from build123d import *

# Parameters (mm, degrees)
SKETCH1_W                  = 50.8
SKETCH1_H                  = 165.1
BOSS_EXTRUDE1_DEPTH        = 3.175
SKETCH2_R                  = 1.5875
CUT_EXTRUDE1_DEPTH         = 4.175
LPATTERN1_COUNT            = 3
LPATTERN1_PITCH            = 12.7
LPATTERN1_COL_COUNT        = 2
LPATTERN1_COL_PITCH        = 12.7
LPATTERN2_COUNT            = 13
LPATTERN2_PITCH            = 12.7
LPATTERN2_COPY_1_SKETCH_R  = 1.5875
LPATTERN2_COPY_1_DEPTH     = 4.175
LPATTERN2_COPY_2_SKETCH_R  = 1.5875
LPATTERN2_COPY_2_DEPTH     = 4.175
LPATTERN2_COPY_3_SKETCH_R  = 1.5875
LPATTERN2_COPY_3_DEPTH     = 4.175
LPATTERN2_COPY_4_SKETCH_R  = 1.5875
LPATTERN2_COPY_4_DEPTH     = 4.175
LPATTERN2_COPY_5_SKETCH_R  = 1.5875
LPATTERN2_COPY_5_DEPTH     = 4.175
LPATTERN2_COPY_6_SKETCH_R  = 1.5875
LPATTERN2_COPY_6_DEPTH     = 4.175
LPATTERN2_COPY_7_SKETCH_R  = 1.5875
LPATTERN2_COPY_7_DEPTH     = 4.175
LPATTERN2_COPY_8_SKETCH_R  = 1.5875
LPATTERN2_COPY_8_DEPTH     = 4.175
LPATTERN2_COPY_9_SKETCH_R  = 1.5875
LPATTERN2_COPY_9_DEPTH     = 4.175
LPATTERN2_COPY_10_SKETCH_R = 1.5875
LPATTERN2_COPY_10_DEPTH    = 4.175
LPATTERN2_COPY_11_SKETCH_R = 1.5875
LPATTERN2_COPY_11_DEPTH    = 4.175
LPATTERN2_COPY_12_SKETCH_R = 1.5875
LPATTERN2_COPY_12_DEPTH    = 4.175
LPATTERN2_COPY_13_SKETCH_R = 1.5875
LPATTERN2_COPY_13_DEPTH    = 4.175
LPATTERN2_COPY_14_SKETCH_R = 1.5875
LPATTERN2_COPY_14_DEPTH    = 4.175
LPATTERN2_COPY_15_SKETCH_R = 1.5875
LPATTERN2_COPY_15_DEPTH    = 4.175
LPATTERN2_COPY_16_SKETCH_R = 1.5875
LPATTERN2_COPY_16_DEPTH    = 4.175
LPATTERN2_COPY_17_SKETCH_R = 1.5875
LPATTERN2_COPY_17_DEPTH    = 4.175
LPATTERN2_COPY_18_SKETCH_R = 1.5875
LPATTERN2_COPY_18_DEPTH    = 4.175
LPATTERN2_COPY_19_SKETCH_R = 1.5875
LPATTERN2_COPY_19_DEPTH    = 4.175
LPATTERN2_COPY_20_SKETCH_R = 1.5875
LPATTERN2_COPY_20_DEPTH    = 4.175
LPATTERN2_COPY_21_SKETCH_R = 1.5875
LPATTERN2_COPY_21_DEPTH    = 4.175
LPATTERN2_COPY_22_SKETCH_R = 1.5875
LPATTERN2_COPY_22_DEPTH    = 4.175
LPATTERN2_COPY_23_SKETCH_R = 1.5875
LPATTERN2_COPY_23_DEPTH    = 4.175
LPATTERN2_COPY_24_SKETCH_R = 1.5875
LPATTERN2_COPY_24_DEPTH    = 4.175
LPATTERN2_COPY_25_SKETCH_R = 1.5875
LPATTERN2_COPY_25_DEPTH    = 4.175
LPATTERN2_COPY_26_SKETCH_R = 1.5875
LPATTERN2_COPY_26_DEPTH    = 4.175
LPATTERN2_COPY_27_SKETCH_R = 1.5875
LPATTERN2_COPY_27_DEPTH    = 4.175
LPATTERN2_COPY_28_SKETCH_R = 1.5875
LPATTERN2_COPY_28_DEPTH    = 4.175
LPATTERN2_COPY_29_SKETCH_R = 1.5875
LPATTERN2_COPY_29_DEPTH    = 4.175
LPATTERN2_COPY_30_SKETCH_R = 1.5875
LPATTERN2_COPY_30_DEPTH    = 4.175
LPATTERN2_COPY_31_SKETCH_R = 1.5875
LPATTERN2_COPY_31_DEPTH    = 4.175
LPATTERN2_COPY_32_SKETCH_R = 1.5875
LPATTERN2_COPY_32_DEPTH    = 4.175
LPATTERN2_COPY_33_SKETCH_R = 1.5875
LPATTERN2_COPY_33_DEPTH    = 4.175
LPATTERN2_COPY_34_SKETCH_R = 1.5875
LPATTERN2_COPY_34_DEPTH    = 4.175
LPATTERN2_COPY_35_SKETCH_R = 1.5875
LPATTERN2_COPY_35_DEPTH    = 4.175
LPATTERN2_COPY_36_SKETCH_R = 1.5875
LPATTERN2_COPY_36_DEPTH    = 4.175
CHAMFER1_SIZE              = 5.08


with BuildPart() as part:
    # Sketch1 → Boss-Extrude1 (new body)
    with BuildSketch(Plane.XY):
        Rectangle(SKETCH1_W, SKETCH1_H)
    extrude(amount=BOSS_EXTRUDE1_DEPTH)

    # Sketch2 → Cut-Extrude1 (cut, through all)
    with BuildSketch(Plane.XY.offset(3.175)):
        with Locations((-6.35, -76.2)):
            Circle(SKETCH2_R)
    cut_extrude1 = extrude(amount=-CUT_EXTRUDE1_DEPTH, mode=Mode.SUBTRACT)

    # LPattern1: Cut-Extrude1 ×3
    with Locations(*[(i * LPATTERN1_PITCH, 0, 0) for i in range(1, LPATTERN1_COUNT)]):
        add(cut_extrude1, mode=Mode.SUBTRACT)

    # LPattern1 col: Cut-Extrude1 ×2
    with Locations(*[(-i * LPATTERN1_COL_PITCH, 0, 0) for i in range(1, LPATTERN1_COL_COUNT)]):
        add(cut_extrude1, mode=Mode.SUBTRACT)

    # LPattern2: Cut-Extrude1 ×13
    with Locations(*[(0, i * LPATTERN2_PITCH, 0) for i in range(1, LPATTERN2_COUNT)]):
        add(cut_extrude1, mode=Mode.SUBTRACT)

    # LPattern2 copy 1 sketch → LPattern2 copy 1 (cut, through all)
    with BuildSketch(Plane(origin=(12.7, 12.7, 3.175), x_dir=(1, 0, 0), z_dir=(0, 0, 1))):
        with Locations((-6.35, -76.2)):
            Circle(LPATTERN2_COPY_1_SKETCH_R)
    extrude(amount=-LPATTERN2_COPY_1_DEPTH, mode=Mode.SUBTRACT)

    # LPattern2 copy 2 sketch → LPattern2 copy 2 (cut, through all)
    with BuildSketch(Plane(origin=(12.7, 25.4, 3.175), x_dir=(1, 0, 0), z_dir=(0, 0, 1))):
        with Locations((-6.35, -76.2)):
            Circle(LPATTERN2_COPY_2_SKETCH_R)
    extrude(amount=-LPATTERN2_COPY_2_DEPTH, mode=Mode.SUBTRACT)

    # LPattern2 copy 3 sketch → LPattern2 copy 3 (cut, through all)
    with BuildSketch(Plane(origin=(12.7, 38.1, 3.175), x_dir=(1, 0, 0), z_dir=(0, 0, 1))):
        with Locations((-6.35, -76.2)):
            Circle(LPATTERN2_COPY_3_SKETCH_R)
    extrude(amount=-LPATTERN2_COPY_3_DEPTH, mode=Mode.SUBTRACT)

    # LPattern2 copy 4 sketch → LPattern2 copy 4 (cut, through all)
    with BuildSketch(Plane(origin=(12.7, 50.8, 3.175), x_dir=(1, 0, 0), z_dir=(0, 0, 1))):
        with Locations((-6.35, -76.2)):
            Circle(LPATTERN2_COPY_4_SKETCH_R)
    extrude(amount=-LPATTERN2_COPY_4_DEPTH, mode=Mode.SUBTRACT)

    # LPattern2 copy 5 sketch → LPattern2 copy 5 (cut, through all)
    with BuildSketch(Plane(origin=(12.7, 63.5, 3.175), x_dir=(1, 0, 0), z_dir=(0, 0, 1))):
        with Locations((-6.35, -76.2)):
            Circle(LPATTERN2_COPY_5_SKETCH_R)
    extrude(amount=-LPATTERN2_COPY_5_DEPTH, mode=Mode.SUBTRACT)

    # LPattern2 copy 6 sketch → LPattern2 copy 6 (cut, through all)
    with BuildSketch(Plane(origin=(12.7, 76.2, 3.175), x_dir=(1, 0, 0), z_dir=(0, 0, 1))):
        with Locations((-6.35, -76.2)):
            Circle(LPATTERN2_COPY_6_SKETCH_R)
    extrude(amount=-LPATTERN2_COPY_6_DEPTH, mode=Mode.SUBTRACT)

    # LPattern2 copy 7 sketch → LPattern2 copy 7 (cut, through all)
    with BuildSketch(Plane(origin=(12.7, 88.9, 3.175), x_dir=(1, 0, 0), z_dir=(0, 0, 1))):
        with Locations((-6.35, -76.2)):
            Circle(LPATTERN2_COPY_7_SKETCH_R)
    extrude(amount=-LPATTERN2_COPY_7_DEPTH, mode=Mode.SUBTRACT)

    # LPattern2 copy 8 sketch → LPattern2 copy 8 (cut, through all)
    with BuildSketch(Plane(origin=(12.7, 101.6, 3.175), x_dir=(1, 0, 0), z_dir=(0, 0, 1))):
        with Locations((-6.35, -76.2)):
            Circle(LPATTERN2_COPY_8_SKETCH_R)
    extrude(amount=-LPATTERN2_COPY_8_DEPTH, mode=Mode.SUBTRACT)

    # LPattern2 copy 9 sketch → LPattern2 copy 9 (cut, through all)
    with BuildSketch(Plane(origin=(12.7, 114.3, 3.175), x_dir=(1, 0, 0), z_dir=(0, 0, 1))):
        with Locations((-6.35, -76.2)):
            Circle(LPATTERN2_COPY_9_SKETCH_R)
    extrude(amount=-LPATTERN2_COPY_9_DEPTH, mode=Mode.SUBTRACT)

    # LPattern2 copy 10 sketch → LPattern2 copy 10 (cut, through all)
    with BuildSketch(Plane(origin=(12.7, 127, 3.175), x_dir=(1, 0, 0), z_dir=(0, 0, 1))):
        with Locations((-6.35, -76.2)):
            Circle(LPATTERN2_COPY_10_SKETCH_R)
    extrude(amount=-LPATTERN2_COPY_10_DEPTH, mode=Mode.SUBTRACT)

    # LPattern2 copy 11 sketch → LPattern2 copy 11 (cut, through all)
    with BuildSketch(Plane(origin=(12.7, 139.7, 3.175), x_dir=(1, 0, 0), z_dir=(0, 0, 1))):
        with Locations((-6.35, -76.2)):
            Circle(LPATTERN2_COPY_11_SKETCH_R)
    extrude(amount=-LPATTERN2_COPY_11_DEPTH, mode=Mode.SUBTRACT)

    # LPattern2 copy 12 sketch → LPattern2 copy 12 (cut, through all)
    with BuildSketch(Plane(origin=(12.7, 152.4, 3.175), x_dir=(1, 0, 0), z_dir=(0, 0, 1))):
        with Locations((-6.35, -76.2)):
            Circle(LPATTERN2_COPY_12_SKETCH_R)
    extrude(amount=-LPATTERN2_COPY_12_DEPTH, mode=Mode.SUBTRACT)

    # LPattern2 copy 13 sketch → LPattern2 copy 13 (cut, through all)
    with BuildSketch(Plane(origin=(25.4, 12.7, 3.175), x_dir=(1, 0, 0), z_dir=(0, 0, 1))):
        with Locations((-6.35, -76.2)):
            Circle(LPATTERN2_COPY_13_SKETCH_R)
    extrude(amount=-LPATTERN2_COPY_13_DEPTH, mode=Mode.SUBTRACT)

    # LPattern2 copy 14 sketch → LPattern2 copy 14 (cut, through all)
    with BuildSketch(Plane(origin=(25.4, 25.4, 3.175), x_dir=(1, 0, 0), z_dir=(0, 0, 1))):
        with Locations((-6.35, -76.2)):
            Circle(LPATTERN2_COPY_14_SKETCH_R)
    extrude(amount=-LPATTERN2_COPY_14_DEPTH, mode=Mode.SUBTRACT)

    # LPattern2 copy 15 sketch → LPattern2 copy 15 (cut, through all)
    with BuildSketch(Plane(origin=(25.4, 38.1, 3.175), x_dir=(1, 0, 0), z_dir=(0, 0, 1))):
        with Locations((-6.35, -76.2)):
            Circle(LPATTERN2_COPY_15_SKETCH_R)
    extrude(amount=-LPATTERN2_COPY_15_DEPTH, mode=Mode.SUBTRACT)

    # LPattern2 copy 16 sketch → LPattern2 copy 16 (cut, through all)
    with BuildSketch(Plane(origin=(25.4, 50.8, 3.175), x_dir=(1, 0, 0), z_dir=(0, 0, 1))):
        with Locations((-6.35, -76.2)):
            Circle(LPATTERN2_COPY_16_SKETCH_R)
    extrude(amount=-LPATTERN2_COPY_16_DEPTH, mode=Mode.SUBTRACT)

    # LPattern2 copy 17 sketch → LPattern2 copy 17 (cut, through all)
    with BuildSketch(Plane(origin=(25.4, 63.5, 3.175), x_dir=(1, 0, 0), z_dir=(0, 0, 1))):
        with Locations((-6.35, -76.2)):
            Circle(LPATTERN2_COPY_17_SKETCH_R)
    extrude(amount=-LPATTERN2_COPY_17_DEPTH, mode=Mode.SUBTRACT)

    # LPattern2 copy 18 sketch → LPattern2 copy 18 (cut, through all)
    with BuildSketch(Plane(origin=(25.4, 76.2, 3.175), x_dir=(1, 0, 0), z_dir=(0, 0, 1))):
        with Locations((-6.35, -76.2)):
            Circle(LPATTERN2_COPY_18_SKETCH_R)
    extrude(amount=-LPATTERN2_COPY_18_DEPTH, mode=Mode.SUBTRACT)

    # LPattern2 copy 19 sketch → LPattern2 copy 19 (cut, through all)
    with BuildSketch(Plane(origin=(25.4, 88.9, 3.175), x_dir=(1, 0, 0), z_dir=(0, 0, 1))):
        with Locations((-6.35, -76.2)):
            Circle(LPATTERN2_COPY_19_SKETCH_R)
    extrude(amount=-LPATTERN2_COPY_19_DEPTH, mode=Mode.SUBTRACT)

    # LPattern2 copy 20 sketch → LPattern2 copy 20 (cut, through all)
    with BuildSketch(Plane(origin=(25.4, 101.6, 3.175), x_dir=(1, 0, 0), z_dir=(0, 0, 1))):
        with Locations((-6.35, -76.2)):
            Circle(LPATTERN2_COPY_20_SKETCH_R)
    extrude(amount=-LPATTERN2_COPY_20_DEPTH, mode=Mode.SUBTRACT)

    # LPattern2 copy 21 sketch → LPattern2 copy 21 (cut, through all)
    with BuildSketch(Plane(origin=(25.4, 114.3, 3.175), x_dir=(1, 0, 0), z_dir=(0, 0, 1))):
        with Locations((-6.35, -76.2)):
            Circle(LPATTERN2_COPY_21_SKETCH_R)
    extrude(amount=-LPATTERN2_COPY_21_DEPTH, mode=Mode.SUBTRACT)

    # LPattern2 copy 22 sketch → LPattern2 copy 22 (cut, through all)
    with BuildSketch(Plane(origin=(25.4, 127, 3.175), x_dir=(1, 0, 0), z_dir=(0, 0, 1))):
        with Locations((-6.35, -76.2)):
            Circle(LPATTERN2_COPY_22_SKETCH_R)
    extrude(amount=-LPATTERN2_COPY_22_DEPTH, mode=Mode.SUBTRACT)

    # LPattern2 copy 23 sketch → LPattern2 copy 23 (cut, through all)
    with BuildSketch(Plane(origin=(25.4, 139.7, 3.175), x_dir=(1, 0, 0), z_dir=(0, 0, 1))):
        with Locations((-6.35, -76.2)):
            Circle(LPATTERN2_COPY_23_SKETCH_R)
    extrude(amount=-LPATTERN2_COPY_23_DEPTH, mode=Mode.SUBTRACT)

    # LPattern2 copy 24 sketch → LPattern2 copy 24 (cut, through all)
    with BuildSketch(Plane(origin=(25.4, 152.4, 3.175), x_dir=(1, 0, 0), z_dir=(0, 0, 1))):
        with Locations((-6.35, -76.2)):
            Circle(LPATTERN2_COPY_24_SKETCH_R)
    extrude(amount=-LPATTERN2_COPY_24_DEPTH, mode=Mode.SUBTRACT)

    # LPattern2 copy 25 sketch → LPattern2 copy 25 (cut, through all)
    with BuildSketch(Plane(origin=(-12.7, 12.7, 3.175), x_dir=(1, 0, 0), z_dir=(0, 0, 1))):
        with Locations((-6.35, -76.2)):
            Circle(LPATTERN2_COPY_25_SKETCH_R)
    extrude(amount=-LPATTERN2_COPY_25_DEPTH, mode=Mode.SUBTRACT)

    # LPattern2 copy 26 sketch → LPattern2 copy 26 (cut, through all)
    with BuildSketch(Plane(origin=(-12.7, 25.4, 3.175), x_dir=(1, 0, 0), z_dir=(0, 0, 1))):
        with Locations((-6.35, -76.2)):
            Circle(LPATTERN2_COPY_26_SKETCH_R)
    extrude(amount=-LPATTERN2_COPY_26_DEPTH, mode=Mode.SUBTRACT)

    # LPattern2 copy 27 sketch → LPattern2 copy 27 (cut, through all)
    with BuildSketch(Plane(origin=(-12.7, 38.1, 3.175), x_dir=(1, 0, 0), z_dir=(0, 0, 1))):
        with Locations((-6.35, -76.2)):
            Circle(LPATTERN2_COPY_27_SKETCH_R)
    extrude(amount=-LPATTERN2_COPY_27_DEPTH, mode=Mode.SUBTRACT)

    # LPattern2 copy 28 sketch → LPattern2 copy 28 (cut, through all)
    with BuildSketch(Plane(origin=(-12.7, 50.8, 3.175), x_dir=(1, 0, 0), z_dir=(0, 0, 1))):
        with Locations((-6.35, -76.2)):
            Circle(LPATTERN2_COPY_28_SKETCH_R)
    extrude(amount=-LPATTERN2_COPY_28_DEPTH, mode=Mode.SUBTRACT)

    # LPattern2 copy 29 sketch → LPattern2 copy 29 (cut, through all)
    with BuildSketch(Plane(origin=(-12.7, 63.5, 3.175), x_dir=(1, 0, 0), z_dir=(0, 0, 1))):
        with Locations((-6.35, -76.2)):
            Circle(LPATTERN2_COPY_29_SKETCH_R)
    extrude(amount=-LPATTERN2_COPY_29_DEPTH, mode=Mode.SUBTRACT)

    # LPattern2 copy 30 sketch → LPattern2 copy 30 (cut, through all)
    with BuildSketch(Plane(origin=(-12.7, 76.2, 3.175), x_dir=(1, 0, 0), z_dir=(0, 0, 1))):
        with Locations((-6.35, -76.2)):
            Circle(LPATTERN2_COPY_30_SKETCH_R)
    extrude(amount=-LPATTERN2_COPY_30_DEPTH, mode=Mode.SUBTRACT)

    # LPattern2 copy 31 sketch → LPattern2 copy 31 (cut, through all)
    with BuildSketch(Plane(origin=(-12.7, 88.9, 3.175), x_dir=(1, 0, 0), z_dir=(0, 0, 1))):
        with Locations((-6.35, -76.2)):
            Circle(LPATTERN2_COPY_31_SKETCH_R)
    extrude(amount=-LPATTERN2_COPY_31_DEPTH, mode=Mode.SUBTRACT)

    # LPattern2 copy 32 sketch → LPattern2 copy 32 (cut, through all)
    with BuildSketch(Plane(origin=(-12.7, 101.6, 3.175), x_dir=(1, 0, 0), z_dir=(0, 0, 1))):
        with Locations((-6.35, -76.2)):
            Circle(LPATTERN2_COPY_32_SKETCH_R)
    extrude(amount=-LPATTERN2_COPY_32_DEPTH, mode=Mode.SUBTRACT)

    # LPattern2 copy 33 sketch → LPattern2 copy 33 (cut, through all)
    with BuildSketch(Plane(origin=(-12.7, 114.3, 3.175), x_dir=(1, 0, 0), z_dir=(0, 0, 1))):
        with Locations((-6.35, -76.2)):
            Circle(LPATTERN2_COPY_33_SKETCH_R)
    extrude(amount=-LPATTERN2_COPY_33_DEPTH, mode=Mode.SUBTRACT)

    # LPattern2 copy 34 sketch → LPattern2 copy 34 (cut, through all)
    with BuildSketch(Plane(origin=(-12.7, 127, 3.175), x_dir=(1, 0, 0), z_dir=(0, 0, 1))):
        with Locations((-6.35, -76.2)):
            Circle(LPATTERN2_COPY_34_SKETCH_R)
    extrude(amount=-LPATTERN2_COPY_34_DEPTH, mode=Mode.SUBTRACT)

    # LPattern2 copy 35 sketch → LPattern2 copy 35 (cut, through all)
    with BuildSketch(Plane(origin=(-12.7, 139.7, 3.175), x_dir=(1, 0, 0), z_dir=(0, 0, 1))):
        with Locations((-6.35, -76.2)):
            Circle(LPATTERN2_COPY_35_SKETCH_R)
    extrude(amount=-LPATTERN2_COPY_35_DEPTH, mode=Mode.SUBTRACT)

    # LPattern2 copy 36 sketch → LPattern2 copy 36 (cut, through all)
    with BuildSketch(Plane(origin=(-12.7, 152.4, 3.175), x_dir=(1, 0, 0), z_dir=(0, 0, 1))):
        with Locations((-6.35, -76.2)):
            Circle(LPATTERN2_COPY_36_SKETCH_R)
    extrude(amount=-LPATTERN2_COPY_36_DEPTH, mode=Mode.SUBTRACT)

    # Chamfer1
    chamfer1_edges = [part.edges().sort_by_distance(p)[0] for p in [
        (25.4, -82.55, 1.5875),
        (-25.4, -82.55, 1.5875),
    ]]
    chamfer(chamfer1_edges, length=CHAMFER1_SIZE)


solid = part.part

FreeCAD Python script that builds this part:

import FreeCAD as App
import Part
import Sketcher
Q = App.Units.Quantity


def edges_at(feature, points):
    """Names of the edges that pass closest to the given points."""
    edges = feature.Shape.Edges
    near = lambda p: min(range(len(edges)), key=lambda i: edges[i].distToShape(Part.Vertex(*p))[0])
    return sorted({f"Edge{near(p) + 1}" for p in points})


def add_polygon(sketch, points):
    """Adds a closed chain of lines whose ends are joined by coincident constraints."""
    first, n = sketch.GeometryCount, len(points)
    for a, b in zip(points, points[1:] + points[:1]):
        sketch.addGeometry(Part.LineSegment(App.Vector(*a, 0), App.Vector(*b, 0)), False)
    for i in range(n):
        sketch.addConstraint(Sketcher.Constraint("Coincident", first + i, 2, first + (i + 1) % n, 1))

doc = App.newDocument("Part")
body = doc.addObject("PartDesign::Body", "Body")

# Sketch on XY plane
sketch1 = doc.addObject("Sketcher::SketchObject", "Sketch")
body.addObject(sketch1)
sketch1.AttachmentSupport = (doc.XY_Plane, [""])
sketch1.MapMode = "FlatFace"
add_polygon(sketch1, [(-25, 83), (-25, -83), (25, -83), (25, 83)])  # lines 0-3
sketch1.addConstraint([
    Sketcher.Constraint("Vertical", 0),
    Sketcher.Constraint("Horizontal", 1),
    Sketcher.Constraint("Vertical", 2),
    Sketcher.Constraint("Horizontal", 3),
    Sketcher.Constraint("Symmetric", 0, 2, 2, 2, -1, 1),
    Sketcher.Constraint("DistanceX", 1, 1, 1, 2, Q("2 in")),
    Sketcher.Constraint("DistanceY", 0, 2, 0, 1, Q("6.5 in")),
])
pad1 = doc.addObject("PartDesign::Pad", "Pad")
body.addObject(pad1)
pad1.Profile = sketch1
pad1.Length = Q("0.125 in")

# Sketch on XY plane
sketch2 = doc.addObject("Sketcher::SketchObject", "Sketch001")
body.addObject(sketch2)
sketch2.AttachmentSupport = (doc.XY_Plane, [""])
sketch2.MapMode = "FlatFace"
sketch2.AttachmentOffset = App.Placement(App.Vector(0, 0, 0.125 * 25.4), App.Rotation())
sketch2.addGeometry(Part.Circle(App.Vector(-6.3, -76.2, 0), App.Vector(0, 0, 1), 1.6), False)
sketch2.addConstraint([
    Sketcher.Constraint("Diameter", 0, Q("0.125 in")),
    Sketcher.Constraint("DistanceY", 0, 3, -1, 1, Q("3 in")),
    Sketcher.Constraint("DistanceX", 0, 3, -1, 1, Q("0.25 in")),
])
pocket1 = doc.addObject("PartDesign::Pocket", "Pocket")
body.addObject(pocket1)
pocket1.Profile = sketch2
pocket1.Type = "ThroughAll"
doc.recompute()

linearpattern = doc.addObject("PartDesign::LinearPattern", "LinearPattern")
body.addObject(linearpattern)
linearpattern.Originals = [pocket1]
linearpattern.Direction = (doc.X_Axis, [""])
linearpattern.Mode = "offset"
linearpattern.Offset = Q("0.5 in")
linearpattern.Occurrences = 3
body.Tip = linearpattern
doc.recompute()

linearpattern2 = doc.addObject("PartDesign::LinearPattern", "LinearPattern001")
body.addObject(linearpattern2)
linearpattern2.Originals = [pocket1]
linearpattern2.Direction = (doc.X_Axis, [""])
linearpattern2.Mode = "offset"
linearpattern2.Offset = Q("0.5 in")
linearpattern2.Occurrences = 2
linearpattern2.Reversed = True
body.Tip = linearpattern2
doc.recompute()

linearpattern3 = doc.addObject("PartDesign::LinearPattern", "LinearPattern002")
body.addObject(linearpattern3)
linearpattern3.Originals = [pocket1]
linearpattern3.Direction = (doc.Y_Axis, [""])
linearpattern3.Mode = "offset"
linearpattern3.Offset = Q("0.5 in")
linearpattern3.Occurrences = 13
body.Tip = linearpattern3

# Sketch on XY plane
sketch3 = doc.addObject("Sketcher::SketchObject", "Sketch002")
body.addObject(sketch3)
sketch3.AttachmentSupport = (doc.XY_Plane, [""])
sketch3.MapMode = "FlatFace"
sketch3.AttachmentOffset = App.Placement(App.Vector(0, 0, 0.125 * 25.4), App.Rotation())
sketch3.addGeometry(Part.Circle(App.Vector(6.3, -63.5, 0), App.Vector(0, 0, 1), 1.6), False)
sketch3.addConstraint([
    Sketcher.Constraint("Diameter", 0, Q("0.125 in")),
    Sketcher.Constraint("DistanceY", 0, 3, -1, 1, Q("2.5 in")),
    Sketcher.Constraint("DistanceX", -1, 1, 0, 3, Q("0.25 in")),
])
pocket2 = doc.addObject("PartDesign::Pocket", "Pocket001")
body.addObject(pocket2)
pocket2.Profile = sketch3
pocket2.Type = "ThroughAll"

# Sketch on XY plane
sketch4 = doc.addObject("Sketcher::SketchObject", "Sketch003")
body.addObject(sketch4)
sketch4.AttachmentSupport = (doc.XY_Plane, [""])
sketch4.MapMode = "FlatFace"
sketch4.AttachmentOffset = App.Placement(App.Vector(0, 0, 0.125 * 25.4), App.Rotation())
sketch4.addGeometry(Part.Circle(App.Vector(6.3, -50.8, 0), App.Vector(0, 0, 1), 1.6), False)
sketch4.addConstraint([
    Sketcher.Constraint("Diameter", 0, Q("0.125 in")),
    Sketcher.Constraint("DistanceY", 0, 3, -1, 1, Q("2 in")),
    Sketcher.Constraint("DistanceX", -1, 1, 0, 3, Q("0.25 in")),
])
pocket3 = doc.addObject("PartDesign::Pocket", "Pocket002")
body.addObject(pocket3)
pocket3.Profile = sketch4
pocket3.Type = "ThroughAll"

# Sketch on XY plane
sketch5 = doc.addObject("Sketcher::SketchObject", "Sketch004")
body.addObject(sketch5)
sketch5.AttachmentSupport = (doc.XY_Plane, [""])
sketch5.MapMode = "FlatFace"
sketch5.AttachmentOffset = App.Placement(App.Vector(0, 0, 0.125 * 25.4), App.Rotation())
sketch5.addGeometry(Part.Circle(App.Vector(6.3, -38.1, 0), App.Vector(0, 0, 1), 1.6), False)
sketch5.addConstraint([
    Sketcher.Constraint("Diameter", 0, Q("0.125 in")),
    Sketcher.Constraint("DistanceY", 0, 3, -1, 1, Q("1.5 in")),
    Sketcher.Constraint("DistanceX", -1, 1, 0, 3, Q("0.25 in")),
])
pocket4 = doc.addObject("PartDesign::Pocket", "Pocket003")
body.addObject(pocket4)
pocket4.Profile = sketch5
pocket4.Type = "ThroughAll"

# Sketch on XY plane
sketch6 = doc.addObject("Sketcher::SketchObject", "Sketch005")
body.addObject(sketch6)
sketch6.AttachmentSupport = (doc.XY_Plane, [""])
sketch6.MapMode = "FlatFace"
sketch6.AttachmentOffset = App.Placement(App.Vector(0, 0, 0.125 * 25.4), App.Rotation())
sketch6.addGeometry(Part.Circle(App.Vector(6.3, -25.4, 0), App.Vector(0, 0, 1), 1.6), False)
sketch6.addConstraint([
    Sketcher.Constraint("Diameter", 0, Q("0.125 in")),
    Sketcher.Constraint("DistanceY", 0, 3, -1, 1, Q("1 in")),
    Sketcher.Constraint("DistanceX", -1, 1, 0, 3, Q("0.25 in")),
])
pocket5 = doc.addObject("PartDesign::Pocket", "Pocket004")
body.addObject(pocket5)
pocket5.Profile = sketch6
pocket5.Type = "ThroughAll"

# Sketch on XY plane
sketch7 = doc.addObject("Sketcher::SketchObject", "Sketch006")
body.addObject(sketch7)
sketch7.AttachmentSupport = (doc.XY_Plane, [""])
sketch7.MapMode = "FlatFace"
sketch7.AttachmentOffset = App.Placement(App.Vector(0, 0, 0.125 * 25.4), App.Rotation())
sketch7.addGeometry(Part.Circle(App.Vector(6.3, -12.7, 0), App.Vector(0, 0, 1), 1.6), False)
sketch7.addConstraint([
    Sketcher.Constraint("Diameter", 0, Q("0.125 in")),
    Sketcher.Constraint("DistanceY", 0, 3, -1, 1, Q("0.5 in")),
    Sketcher.Constraint("DistanceX", -1, 1, 0, 3, Q("0.25 in")),
])
pocket6 = doc.addObject("PartDesign::Pocket", "Pocket005")
body.addObject(pocket6)
pocket6.Profile = sketch7
pocket6.Type = "ThroughAll"

# Sketch on XY plane
sketch8 = doc.addObject("Sketcher::SketchObject", "Sketch007")
body.addObject(sketch8)
sketch8.AttachmentSupport = (doc.XY_Plane, [""])
sketch8.MapMode = "FlatFace"
sketch8.AttachmentOffset = App.Placement(App.Vector(0, 0, 0.125 * 25.4), App.Rotation())
sketch8.addGeometry(Part.Circle(App.Vector(6.3, 0, 0), App.Vector(0, 0, 1), 1.6), False)
sketch8.addConstraint([
    Sketcher.Constraint("PointOnObject", 0, 3, -1),
    Sketcher.Constraint("Diameter", 0, Q("0.125 in")),
    Sketcher.Constraint("DistanceX", -1, 1, 0, 3, Q("0.25 in")),
])
pocket7 = doc.addObject("PartDesign::Pocket", "Pocket006")
body.addObject(pocket7)
pocket7.Profile = sketch8
pocket7.Type = "ThroughAll"

# Sketch on XY plane
sketch9 = doc.addObject("Sketcher::SketchObject", "Sketch008")
body.addObject(sketch9)
sketch9.AttachmentSupport = (doc.XY_Plane, [""])
sketch9.MapMode = "FlatFace"
sketch9.AttachmentOffset = App.Placement(App.Vector(0, 0, 0.125 * 25.4), App.Rotation())
sketch9.addGeometry(Part.Circle(App.Vector(6.3, 12.7, 0), App.Vector(0, 0, 1), 1.6), False)
sketch9.addConstraint([
    Sketcher.Constraint("Diameter", 0, Q("0.125 in")),
    Sketcher.Constraint("DistanceY", -1, 1, 0, 3, Q("0.5 in")),
    Sketcher.Constraint("DistanceX", -1, 1, 0, 3, Q("0.25 in")),
])
pocket8 = doc.addObject("PartDesign::Pocket", "Pocket007")
body.addObject(pocket8)
pocket8.Profile = sketch9
pocket8.Type = "ThroughAll"

# Sketch on XY plane
sketch10 = doc.addObject("Sketcher::SketchObject", "Sketch009")
body.addObject(sketch10)
sketch10.AttachmentSupport = (doc.XY_Plane, [""])
sketch10.MapMode = "FlatFace"
sketch10.AttachmentOffset = App.Placement(App.Vector(0, 0, 0.125 * 25.4), App.Rotation())
sketch10.addGeometry(Part.Circle(App.Vector(6.3, 25.4, 0), App.Vector(0, 0, 1), 1.6), False)
sketch10.addConstraint([
    Sketcher.Constraint("Diameter", 0, Q("0.125 in")),
    Sketcher.Constraint("DistanceY", -1, 1, 0, 3, Q("1 in")),
    Sketcher.Constraint("DistanceX", -1, 1, 0, 3, Q("0.25 in")),
])
pocket9 = doc.addObject("PartDesign::Pocket", "Pocket008")
body.addObject(pocket9)
pocket9.Profile = sketch10
pocket9.Type = "ThroughAll"

# Sketch on XY plane
sketch11 = doc.addObject("Sketcher::SketchObject", "Sketch010")
body.addObject(sketch11)
sketch11.AttachmentSupport = (doc.XY_Plane, [""])
sketch11.MapMode = "FlatFace"
sketch11.AttachmentOffset = App.Placement(App.Vector(0, 0, 0.125 * 25.4), App.Rotation())
sketch11.addGeometry(Part.Circle(App.Vector(6.3, 38.1, 0), App.Vector(0, 0, 1), 1.6), False)
sketch11.addConstraint([
    Sketcher.Constraint("Diameter", 0, Q("0.125 in")),
    Sketcher.Constraint("DistanceY", -1, 1, 0, 3, Q("1.5 in")),
    Sketcher.Constraint("DistanceX", -1, 1, 0, 3, Q("0.25 in")),
])
pocket10 = doc.addObject("PartDesign::Pocket", "Pocket009")
body.addObject(pocket10)
pocket10.Profile = sketch11
pocket10.Type = "ThroughAll"

# Sketch on XY plane
sketch12 = doc.addObject("Sketcher::SketchObject", "Sketch011")
body.addObject(sketch12)
sketch12.AttachmentSupport = (doc.XY_Plane, [""])
sketch12.MapMode = "FlatFace"
sketch12.AttachmentOffset = App.Placement(App.Vector(0, 0, 0.125 * 25.4), App.Rotation())
sketch12.addGeometry(Part.Circle(App.Vector(6.3, 50.8, 0), App.Vector(0, 0, 1), 1.6), False)
sketch12.addConstraint([
    Sketcher.Constraint("Diameter", 0, Q("0.125 in")),
    Sketcher.Constraint("DistanceY", -1, 1, 0, 3, Q("2 in")),
    Sketcher.Constraint("DistanceX", -1, 1, 0, 3, Q("0.25 in")),
])
pocket11 = doc.addObject("PartDesign::Pocket", "Pocket010")
body.addObject(pocket11)
pocket11.Profile = sketch12
pocket11.Type = "ThroughAll"

# Sketch on XY plane
sketch13 = doc.addObject("Sketcher::SketchObject", "Sketch012")
body.addObject(sketch13)
sketch13.AttachmentSupport = (doc.XY_Plane, [""])
sketch13.MapMode = "FlatFace"
sketch13.AttachmentOffset = App.Placement(App.Vector(0, 0, 0.125 * 25.4), App.Rotation())
sketch13.addGeometry(Part.Circle(App.Vector(6.3, 63.5, 0), App.Vector(0, 0, 1), 1.6), False)
sketch13.addConstraint([
    Sketcher.Constraint("Diameter", 0, Q("0.125 in")),
    Sketcher.Constraint("DistanceY", -1, 1, 0, 3, Q("2.5 in")),
    Sketcher.Constraint("DistanceX", -1, 1, 0, 3, Q("0.25 in")),
])
pocket12 = doc.addObject("PartDesign::Pocket", "Pocket011")
body.addObject(pocket12)
pocket12.Profile = sketch13
pocket12.Type = "ThroughAll"

# Sketch on XY plane
sketch14 = doc.addObject("Sketcher::SketchObject", "Sketch013")
body.addObject(sketch14)
sketch14.AttachmentSupport = (doc.XY_Plane, [""])
sketch14.MapMode = "FlatFace"
sketch14.AttachmentOffset = App.Placement(App.Vector(0, 0, 0.125 * 25.4), App.Rotation())
sketch14.addGeometry(Part.Circle(App.Vector(6.3, 76.2, 0), App.Vector(0, 0, 1), 1.6), False)
sketch14.addConstraint([
    Sketcher.Constraint("Diameter", 0, Q("0.125 in")),
    Sketcher.Constraint("DistanceY", -1, 1, 0, 3, Q("3 in")),
    Sketcher.Constraint("DistanceX", -1, 1, 0, 3, Q("0.25 in")),
])
pocket13 = doc.addObject("PartDesign::Pocket", "Pocket012")
body.addObject(pocket13)
pocket13.Profile = sketch14
pocket13.Type = "ThroughAll"

# Sketch on XY plane
sketch15 = doc.addObject("Sketcher::SketchObject", "Sketch014")
body.addObject(sketch15)
sketch15.AttachmentSupport = (doc.XY_Plane, [""])
sketch15.MapMode = "FlatFace"
sketch15.AttachmentOffset = App.Placement(App.Vector(0, 0, 0.125 * 25.4), App.Rotation())
sketch15.addGeometry(Part.Circle(App.Vector(19.1, -63.5, 0), App.Vector(0, 0, 1), 1.6), False)
sketch15.addConstraint([
    Sketcher.Constraint("Diameter", 0, Q("0.125 in")),
    Sketcher.Constraint("DistanceY", 0, 3, -1, 1, Q("2.5 in")),
    Sketcher.Constraint("DistanceX", -1, 1, 0, 3, Q("0.75 in")),
])
pocket14 = doc.addObject("PartDesign::Pocket", "Pocket013")
body.addObject(pocket14)
pocket14.Profile = sketch15
pocket14.Type = "ThroughAll"

# Sketch on XY plane
sketch16 = doc.addObject("Sketcher::SketchObject", "Sketch015")
body.addObject(sketch16)
sketch16.AttachmentSupport = (doc.XY_Plane, [""])
sketch16.MapMode = "FlatFace"
sketch16.AttachmentOffset = App.Placement(App.Vector(0, 0, 0.125 * 25.4), App.Rotation())
sketch16.addGeometry(Part.Circle(App.Vector(19.1, -50.8, 0), App.Vector(0, 0, 1), 1.6), False)
sketch16.addConstraint([
    Sketcher.Constraint("Diameter", 0, Q("0.125 in")),
    Sketcher.Constraint("DistanceY", 0, 3, -1, 1, Q("2 in")),
    Sketcher.Constraint("DistanceX", -1, 1, 0, 3, Q("0.75 in")),
])
pocket15 = doc.addObject("PartDesign::Pocket", "Pocket014")
body.addObject(pocket15)
pocket15.Profile = sketch16
pocket15.Type = "ThroughAll"

# Sketch on XY plane
sketch17 = doc.addObject("Sketcher::SketchObject", "Sketch016")
body.addObject(sketch17)
sketch17.AttachmentSupport = (doc.XY_Plane, [""])
sketch17.MapMode = "FlatFace"
sketch17.AttachmentOffset = App.Placement(App.Vector(0, 0, 0.125 * 25.4), App.Rotation())
sketch17.addGeometry(Part.Circle(App.Vector(19.1, -38.1, 0), App.Vector(0, 0, 1), 1.6), False)
sketch17.addConstraint([
    Sketcher.Constraint("Diameter", 0, Q("0.125 in")),
    Sketcher.Constraint("DistanceY", 0, 3, -1, 1, Q("1.5 in")),
    Sketcher.Constraint("DistanceX", -1, 1, 0, 3, Q("0.75 in")),
])
pocket16 = doc.addObject("PartDesign::Pocket", "Pocket015")
body.addObject(pocket16)
pocket16.Profile = sketch17
pocket16.Type = "ThroughAll"

# Sketch on XY plane
sketch18 = doc.addObject("Sketcher::SketchObject", "Sketch017")
body.addObject(sketch18)
sketch18.AttachmentSupport = (doc.XY_Plane, [""])
sketch18.MapMode = "FlatFace"
sketch18.AttachmentOffset = App.Placement(App.Vector(0, 0, 0.125 * 25.4), App.Rotation())
sketch18.addGeometry(Part.Circle(App.Vector(19.1, -25.4, 0), App.Vector(0, 0, 1), 1.6), False)
sketch18.addConstraint([
    Sketcher.Constraint("Diameter", 0, Q("0.125 in")),
    Sketcher.Constraint("DistanceY", 0, 3, -1, 1, Q("1 in")),
    Sketcher.Constraint("DistanceX", -1, 1, 0, 3, Q("0.75 in")),
])
pocket17 = doc.addObject("PartDesign::Pocket", "Pocket016")
body.addObject(pocket17)
pocket17.Profile = sketch18
pocket17.Type = "ThroughAll"

# Sketch on XY plane
sketch19 = doc.addObject("Sketcher::SketchObject", "Sketch018")
body.addObject(sketch19)
sketch19.AttachmentSupport = (doc.XY_Plane, [""])
sketch19.MapMode = "FlatFace"
sketch19.AttachmentOffset = App.Placement(App.Vector(0, 0, 0.125 * 25.4), App.Rotation())
sketch19.addGeometry(Part.Circle(App.Vector(19.1, -12.7, 0), App.Vector(0, 0, 1), 1.6), False)
sketch19.addConstraint([
    Sketcher.Constraint("Diameter", 0, Q("0.125 in")),
    Sketcher.Constraint("DistanceY", 0, 3, -1, 1, Q("0.5 in")),
    Sketcher.Constraint("DistanceX", -1, 1, 0, 3, Q("0.75 in")),
])
pocket18 = doc.addObject("PartDesign::Pocket", "Pocket017")
body.addObject(pocket18)
pocket18.Profile = sketch19
pocket18.Type = "ThroughAll"

# Sketch on XY plane
sketch20 = doc.addObject("Sketcher::SketchObject", "Sketch019")
body.addObject(sketch20)
sketch20.AttachmentSupport = (doc.XY_Plane, [""])
sketch20.MapMode = "FlatFace"
sketch20.AttachmentOffset = App.Placement(App.Vector(0, 0, 0.125 * 25.4), App.Rotation())
sketch20.addGeometry(Part.Circle(App.Vector(19.1, 0, 0), App.Vector(0, 0, 1), 1.6), False)
sketch20.addConstraint([
    Sketcher.Constraint("PointOnObject", 0, 3, -1),
    Sketcher.Constraint("Diameter", 0, Q("0.125 in")),
    Sketcher.Constraint("DistanceX", -1, 1, 0, 3, Q("0.75 in")),
])
pocket19 = doc.addObject("PartDesign::Pocket", "Pocket018")
body.addObject(pocket19)
pocket19.Profile = sketch20
pocket19.Type = "ThroughAll"

# Sketch on XY plane
sketch21 = doc.addObject("Sketcher::SketchObject", "Sketch020")
body.addObject(sketch21)
sketch21.AttachmentSupport = (doc.XY_Plane, [""])
sketch21.MapMode = "FlatFace"
sketch21.AttachmentOffset = App.Placement(App.Vector(0, 0, 0.125 * 25.4), App.Rotation())
sketch21.addGeometry(Part.Circle(App.Vector(19.1, 12.7, 0), App.Vector(0, 0, 1), 1.6), False)
sketch21.addConstraint([
    Sketcher.Constraint("Diameter", 0, Q("0.125 in")),
    Sketcher.Constraint("DistanceY", -1, 1, 0, 3, Q("0.5 in")),
    Sketcher.Constraint("DistanceX", -1, 1, 0, 3, Q("0.75 in")),
])
pocket20 = doc.addObject("PartDesign::Pocket", "Pocket019")
body.addObject(pocket20)
pocket20.Profile = sketch21
pocket20.Type = "ThroughAll"

# Sketch on XY plane
sketch22 = doc.addObject("Sketcher::SketchObject", "Sketch021")
body.addObject(sketch22)
sketch22.AttachmentSupport = (doc.XY_Plane, [""])
sketch22.MapMode = "FlatFace"
sketch22.AttachmentOffset = App.Placement(App.Vector(0, 0, 0.125 * 25.4), App.Rotation())
sketch22.addGeometry(Part.Circle(App.Vector(19.1, 25.4, 0), App.Vector(0, 0, 1), 1.6), False)
sketch22.addConstraint([
    Sketcher.Constraint("Diameter", 0, Q("0.125 in")),
    Sketcher.Constraint("DistanceY", -1, 1, 0, 3, Q("1 in")),
    Sketcher.Constraint("DistanceX", -1, 1, 0, 3, Q("0.75 in")),
])
pocket21 = doc.addObject("PartDesign::Pocket", "Pocket020")
body.addObject(pocket21)
pocket21.Profile = sketch22
pocket21.Type = "ThroughAll"

# Sketch on XY plane
sketch23 = doc.addObject("Sketcher::SketchObject", "Sketch022")
body.addObject(sketch23)
sketch23.AttachmentSupport = (doc.XY_Plane, [""])
sketch23.MapMode = "FlatFace"
sketch23.AttachmentOffset = App.Placement(App.Vector(0, 0, 0.125 * 25.4), App.Rotation())
sketch23.addGeometry(Part.Circle(App.Vector(19.1, 38.1, 0), App.Vector(0, 0, 1), 1.6), False)
sketch23.addConstraint([
    Sketcher.Constraint("Diameter", 0, Q("0.125 in")),
    Sketcher.Constraint("DistanceY", -1, 1, 0, 3, Q("1.5 in")),
    Sketcher.Constraint("DistanceX", -1, 1, 0, 3, Q("0.75 in")),
])
pocket22 = doc.addObject("PartDesign::Pocket", "Pocket021")
body.addObject(pocket22)
pocket22.Profile = sketch23
pocket22.Type = "ThroughAll"

# Sketch on XY plane
sketch24 = doc.addObject("Sketcher::SketchObject", "Sketch023")
body.addObject(sketch24)
sketch24.AttachmentSupport = (doc.XY_Plane, [""])
sketch24.MapMode = "FlatFace"
sketch24.AttachmentOffset = App.Placement(App.Vector(0, 0, 0.125 * 25.4), App.Rotation())
sketch24.addGeometry(Part.Circle(App.Vector(19.1, 50.8, 0), App.Vector(0, 0, 1), 1.6), False)
sketch24.addConstraint([
    Sketcher.Constraint("Diameter", 0, Q("0.125 in")),
    Sketcher.Constraint("DistanceY", -1, 1, 0, 3, Q("2 in")),
    Sketcher.Constraint("DistanceX", -1, 1, 0, 3, Q("0.75 in")),
])
pocket23 = doc.addObject("PartDesign::Pocket", "Pocket022")
body.addObject(pocket23)
pocket23.Profile = sketch24
pocket23.Type = "ThroughAll"

# Sketch on XY plane
sketch25 = doc.addObject("Sketcher::SketchObject", "Sketch024")
body.addObject(sketch25)
sketch25.AttachmentSupport = (doc.XY_Plane, [""])
sketch25.MapMode = "FlatFace"
sketch25.AttachmentOffset = App.Placement(App.Vector(0, 0, 0.125 * 25.4), App.Rotation())
sketch25.addGeometry(Part.Circle(App.Vector(19.1, 63.5, 0), App.Vector(0, 0, 1), 1.6), False)
sketch25.addConstraint([
    Sketcher.Constraint("Diameter", 0, Q("0.125 in")),
    Sketcher.Constraint("DistanceY", -1, 1, 0, 3, Q("2.5 in")),
    Sketcher.Constraint("DistanceX", -1, 1, 0, 3, Q("0.75 in")),
])
pocket24 = doc.addObject("PartDesign::Pocket", "Pocket023")
body.addObject(pocket24)
pocket24.Profile = sketch25
pocket24.Type = "ThroughAll"

# Sketch on XY plane
sketch26 = doc.addObject("Sketcher::SketchObject", "Sketch025")
body.addObject(sketch26)
sketch26.AttachmentSupport = (doc.XY_Plane, [""])
sketch26.MapMode = "FlatFace"
sketch26.AttachmentOffset = App.Placement(App.Vector(0, 0, 0.125 * 25.4), App.Rotation())
sketch26.addGeometry(Part.Circle(App.Vector(19.1, 76.2, 0), App.Vector(0, 0, 1), 1.6), False)
sketch26.addConstraint([
    Sketcher.Constraint("Diameter", 0, Q("0.125 in")),
    Sketcher.Constraint("DistanceY", -1, 1, 0, 3, Q("3 in")),
    Sketcher.Constraint("DistanceX", -1, 1, 0, 3, Q("0.75 in")),
])
pocket25 = doc.addObject("PartDesign::Pocket", "Pocket024")
body.addObject(pocket25)
pocket25.Profile = sketch26
pocket25.Type = "ThroughAll"

# Sketch on XY plane
sketch27 = doc.addObject("Sketcher::SketchObject", "Sketch026")
body.addObject(sketch27)
sketch27.AttachmentSupport = (doc.XY_Plane, [""])
sketch27.MapMode = "FlatFace"
sketch27.AttachmentOffset = App.Placement(App.Vector(0, 0, 0.125 * 25.4), App.Rotation())
sketch27.addGeometry(Part.Circle(App.Vector(-19.1, -63.5, 0), App.Vector(0, 0, 1), 1.6), False)
sketch27.addConstraint([
    Sketcher.Constraint("Diameter", 0, Q("0.125 in")),
    Sketcher.Constraint("DistanceY", 0, 3, -1, 1, Q("2.5 in")),
    Sketcher.Constraint("DistanceX", 0, 3, -1, 1, Q("0.75 in")),
])
pocket26 = doc.addObject("PartDesign::Pocket", "Pocket025")
body.addObject(pocket26)
pocket26.Profile = sketch27
pocket26.Type = "ThroughAll"

# Sketch on XY plane
sketch28 = doc.addObject("Sketcher::SketchObject", "Sketch027")
body.addObject(sketch28)
sketch28.AttachmentSupport = (doc.XY_Plane, [""])
sketch28.MapMode = "FlatFace"
sketch28.AttachmentOffset = App.Placement(App.Vector(0, 0, 0.125 * 25.4), App.Rotation())
sketch28.addGeometry(Part.Circle(App.Vector(-19.1, -50.8, 0), App.Vector(0, 0, 1), 1.6), False)
sketch28.addConstraint([
    Sketcher.Constraint("Diameter", 0, Q("0.125 in")),
    Sketcher.Constraint("DistanceY", 0, 3, -1, 1, Q("2 in")),
    Sketcher.Constraint("DistanceX", 0, 3, -1, 1, Q("0.75 in")),
])
pocket27 = doc.addObject("PartDesign::Pocket", "Pocket026")
body.addObject(pocket27)
pocket27.Profile = sketch28
pocket27.Type = "ThroughAll"

# Sketch on XY plane
sketch29 = doc.addObject("Sketcher::SketchObject", "Sketch028")
body.addObject(sketch29)
sketch29.AttachmentSupport = (doc.XY_Plane, [""])
sketch29.MapMode = "FlatFace"
sketch29.AttachmentOffset = App.Placement(App.Vector(0, 0, 0.125 * 25.4), App.Rotation())
sketch29.addGeometry(Part.Circle(App.Vector(-19.1, -38.1, 0), App.Vector(0, 0, 1), 1.6), False)
sketch29.addConstraint([
    Sketcher.Constraint("Diameter", 0, Q("0.125 in")),
    Sketcher.Constraint("DistanceY", 0, 3, -1, 1, Q("1.5 in")),
    Sketcher.Constraint("DistanceX", 0, 3, -1, 1, Q("0.75 in")),
])
pocket28 = doc.addObject("PartDesign::Pocket", "Pocket027")
body.addObject(pocket28)
pocket28.Profile = sketch29
pocket28.Type = "ThroughAll"

# Sketch on XY plane
sketch30 = doc.addObject("Sketcher::SketchObject", "Sketch029")
body.addObject(sketch30)
sketch30.AttachmentSupport = (doc.XY_Plane, [""])
sketch30.MapMode = "FlatFace"
sketch30.AttachmentOffset = App.Placement(App.Vector(0, 0, 0.125 * 25.4), App.Rotation())
sketch30.addGeometry(Part.Circle(App.Vector(-19.1, -25.4, 0), App.Vector(0, 0, 1), 1.6), False)
sketch30.addConstraint([
    Sketcher.Constraint("Diameter", 0, Q("0.125 in")),
    Sketcher.Constraint("DistanceY", 0, 3, -1, 1, Q("1 in")),
    Sketcher.Constraint("DistanceX", 0, 3, -1, 1, Q("0.75 in")),
])
pocket29 = doc.addObject("PartDesign::Pocket", "Pocket028")
body.addObject(pocket29)
pocket29.Profile = sketch30
pocket29.Type = "ThroughAll"

# Sketch on XY plane
sketch31 = doc.addObject("Sketcher::SketchObject", "Sketch030")
body.addObject(sketch31)
sketch31.AttachmentSupport = (doc.XY_Plane, [""])
sketch31.MapMode = "FlatFace"
sketch31.AttachmentOffset = App.Placement(App.Vector(0, 0, 0.125 * 25.4), App.Rotation())
sketch31.addGeometry(Part.Circle(App.Vector(-19.1, -12.7, 0), App.Vector(0, 0, 1), 1.6), False)
sketch31.addConstraint([
    Sketcher.Constraint("Diameter", 0, Q("0.125 in")),
    Sketcher.Constraint("DistanceY", 0, 3, -1, 1, Q("0.5 in")),
    Sketcher.Constraint("DistanceX", 0, 3, -1, 1, Q("0.75 in")),
])
pocket30 = doc.addObject("PartDesign::Pocket", "Pocket029")
body.addObject(pocket30)
pocket30.Profile = sketch31
pocket30.Type = "ThroughAll"

# Sketch on XY plane
sketch32 = doc.addObject("Sketcher::SketchObject", "Sketch031")
body.addObject(sketch32)
sketch32.AttachmentSupport = (doc.XY_Plane, [""])
sketch32.MapMode = "FlatFace"
sketch32.AttachmentOffset = App.Placement(App.Vector(0, 0, 0.125 * 25.4), App.Rotation())
sketch32.addGeometry(Part.Circle(App.Vector(-19.1, 0, 0), App.Vector(0, 0, 1), 1.6), False)
sketch32.addConstraint([
    Sketcher.Constraint("PointOnObject", 0, 3, -1),
    Sketcher.Constraint("Diameter", 0, Q("0.125 in")),
    Sketcher.Constraint("DistanceX", 0, 3, -1, 1, Q("0.75 in")),
])
pocket31 = doc.addObject("PartDesign::Pocket", "Pocket030")
body.addObject(pocket31)
pocket31.Profile = sketch32
pocket31.Type = "ThroughAll"

# Sketch on XY plane
sketch33 = doc.addObject("Sketcher::SketchObject", "Sketch032")
body.addObject(sketch33)
sketch33.AttachmentSupport = (doc.XY_Plane, [""])
sketch33.MapMode = "FlatFace"
sketch33.AttachmentOffset = App.Placement(App.Vector(0, 0, 0.125 * 25.4), App.Rotation())
sketch33.addGeometry(Part.Circle(App.Vector(-19.1, 12.7, 0), App.Vector(0, 0, 1), 1.6), False)
sketch33.addConstraint([
    Sketcher.Constraint("Diameter", 0, Q("0.125 in")),
    Sketcher.Constraint("DistanceY", -1, 1, 0, 3, Q("0.5 in")),
    Sketcher.Constraint("DistanceX", 0, 3, -1, 1, Q("0.75 in")),
])
pocket32 = doc.addObject("PartDesign::Pocket", "Pocket031")
body.addObject(pocket32)
pocket32.Profile = sketch33
pocket32.Type = "ThroughAll"

# Sketch on XY plane
sketch34 = doc.addObject("Sketcher::SketchObject", "Sketch033")
body.addObject(sketch34)
sketch34.AttachmentSupport = (doc.XY_Plane, [""])
sketch34.MapMode = "FlatFace"
sketch34.AttachmentOffset = App.Placement(App.Vector(0, 0, 0.125 * 25.4), App.Rotation())
sketch34.addGeometry(Part.Circle(App.Vector(-19.1, 25.4, 0), App.Vector(0, 0, 1), 1.6), False)
sketch34.addConstraint([
    Sketcher.Constraint("Diameter", 0, Q("0.125 in")),
    Sketcher.Constraint("DistanceY", -1, 1, 0, 3, Q("1 in")),
    Sketcher.Constraint("DistanceX", 0, 3, -1, 1, Q("0.75 in")),
])
pocket33 = doc.addObject("PartDesign::Pocket", "Pocket032")
body.addObject(pocket33)
pocket33.Profile = sketch34
pocket33.Type = "ThroughAll"

# Sketch on XY plane
sketch35 = doc.addObject("Sketcher::SketchObject", "Sketch034")
body.addObject(sketch35)
sketch35.AttachmentSupport = (doc.XY_Plane, [""])
sketch35.MapMode = "FlatFace"
sketch35.AttachmentOffset = App.Placement(App.Vector(0, 0, 0.125 * 25.4), App.Rotation())
sketch35.addGeometry(Part.Circle(App.Vector(-19.1, 38.1, 0), App.Vector(0, 0, 1), 1.6), False)
sketch35.addConstraint([
    Sketcher.Constraint("Diameter", 0, Q("0.125 in")),
    Sketcher.Constraint("DistanceY", -1, 1, 0, 3, Q("1.5 in")),
    Sketcher.Constraint("DistanceX", 0, 3, -1, 1, Q("0.75 in")),
])
pocket34 = doc.addObject("PartDesign::Pocket", "Pocket033")
body.addObject(pocket34)
pocket34.Profile = sketch35
pocket34.Type = "ThroughAll"

# Sketch on XY plane
sketch36 = doc.addObject("Sketcher::SketchObject", "Sketch035")
body.addObject(sketch36)
sketch36.AttachmentSupport = (doc.XY_Plane, [""])
sketch36.MapMode = "FlatFace"
sketch36.AttachmentOffset = App.Placement(App.Vector(0, 0, 0.125 * 25.4), App.Rotation())
sketch36.addGeometry(Part.Circle(App.Vector(-19.1, 50.8, 0), App.Vector(0, 0, 1), 1.6), False)
sketch36.addConstraint([
    Sketcher.Constraint("Diameter", 0, Q("0.125 in")),
    Sketcher.Constraint("DistanceY", -1, 1, 0, 3, Q("2 in")),
    Sketcher.Constraint("DistanceX", 0, 3, -1, 1, Q("0.75 in")),
])
pocket35 = doc.addObject("PartDesign::Pocket", "Pocket034")
body.addObject(pocket35)
pocket35.Profile = sketch36
pocket35.Type = "ThroughAll"

# Sketch on XY plane
sketch37 = doc.addObject("Sketcher::SketchObject", "Sketch036")
body.addObject(sketch37)
sketch37.AttachmentSupport = (doc.XY_Plane, [""])
sketch37.MapMode = "FlatFace"
sketch37.AttachmentOffset = App.Placement(App.Vector(0, 0, 0.125 * 25.4), App.Rotation())
sketch37.addGeometry(Part.Circle(App.Vector(-19.1, 63.5, 0), App.Vector(0, 0, 1), 1.6), False)
sketch37.addConstraint([
    Sketcher.Constraint("Diameter", 0, Q("0.125 in")),
    Sketcher.Constraint("DistanceY", -1, 1, 0, 3, Q("2.5 in")),
    Sketcher.Constraint("DistanceX", 0, 3, -1, 1, Q("0.75 in")),
])
pocket36 = doc.addObject("PartDesign::Pocket", "Pocket035")
body.addObject(pocket36)
pocket36.Profile = sketch37
pocket36.Type = "ThroughAll"

# Sketch on XY plane
sketch38 = doc.addObject("Sketcher::SketchObject", "Sketch037")
body.addObject(sketch38)
sketch38.AttachmentSupport = (doc.XY_Plane, [""])
sketch38.MapMode = "FlatFace"
sketch38.AttachmentOffset = App.Placement(App.Vector(0, 0, 0.125 * 25.4), App.Rotation())
sketch38.addGeometry(Part.Circle(App.Vector(-19.1, 76.2, 0), App.Vector(0, 0, 1), 1.6), False)
sketch38.addConstraint([
    Sketcher.Constraint("Diameter", 0, Q("0.125 in")),
    Sketcher.Constraint("DistanceY", -1, 1, 0, 3, Q("3 in")),
    Sketcher.Constraint("DistanceX", 0, 3, -1, 1, Q("0.75 in")),
])
pocket37 = doc.addObject("PartDesign::Pocket", "Pocket036")
body.addObject(pocket37)
pocket37.Profile = sketch38
pocket37.Type = "ThroughAll"
doc.recompute()

chamfer = doc.addObject("PartDesign::Chamfer", "Chamfer")
body.addObject(chamfer)
chamfer.Base = (pocket37, edges_at(pocket37, [(25.4, -82.55, 1.587), (-25.4, -82.55, 1.587)]))
chamfer.Size = Q("0.2 in")

doc.recompute()
